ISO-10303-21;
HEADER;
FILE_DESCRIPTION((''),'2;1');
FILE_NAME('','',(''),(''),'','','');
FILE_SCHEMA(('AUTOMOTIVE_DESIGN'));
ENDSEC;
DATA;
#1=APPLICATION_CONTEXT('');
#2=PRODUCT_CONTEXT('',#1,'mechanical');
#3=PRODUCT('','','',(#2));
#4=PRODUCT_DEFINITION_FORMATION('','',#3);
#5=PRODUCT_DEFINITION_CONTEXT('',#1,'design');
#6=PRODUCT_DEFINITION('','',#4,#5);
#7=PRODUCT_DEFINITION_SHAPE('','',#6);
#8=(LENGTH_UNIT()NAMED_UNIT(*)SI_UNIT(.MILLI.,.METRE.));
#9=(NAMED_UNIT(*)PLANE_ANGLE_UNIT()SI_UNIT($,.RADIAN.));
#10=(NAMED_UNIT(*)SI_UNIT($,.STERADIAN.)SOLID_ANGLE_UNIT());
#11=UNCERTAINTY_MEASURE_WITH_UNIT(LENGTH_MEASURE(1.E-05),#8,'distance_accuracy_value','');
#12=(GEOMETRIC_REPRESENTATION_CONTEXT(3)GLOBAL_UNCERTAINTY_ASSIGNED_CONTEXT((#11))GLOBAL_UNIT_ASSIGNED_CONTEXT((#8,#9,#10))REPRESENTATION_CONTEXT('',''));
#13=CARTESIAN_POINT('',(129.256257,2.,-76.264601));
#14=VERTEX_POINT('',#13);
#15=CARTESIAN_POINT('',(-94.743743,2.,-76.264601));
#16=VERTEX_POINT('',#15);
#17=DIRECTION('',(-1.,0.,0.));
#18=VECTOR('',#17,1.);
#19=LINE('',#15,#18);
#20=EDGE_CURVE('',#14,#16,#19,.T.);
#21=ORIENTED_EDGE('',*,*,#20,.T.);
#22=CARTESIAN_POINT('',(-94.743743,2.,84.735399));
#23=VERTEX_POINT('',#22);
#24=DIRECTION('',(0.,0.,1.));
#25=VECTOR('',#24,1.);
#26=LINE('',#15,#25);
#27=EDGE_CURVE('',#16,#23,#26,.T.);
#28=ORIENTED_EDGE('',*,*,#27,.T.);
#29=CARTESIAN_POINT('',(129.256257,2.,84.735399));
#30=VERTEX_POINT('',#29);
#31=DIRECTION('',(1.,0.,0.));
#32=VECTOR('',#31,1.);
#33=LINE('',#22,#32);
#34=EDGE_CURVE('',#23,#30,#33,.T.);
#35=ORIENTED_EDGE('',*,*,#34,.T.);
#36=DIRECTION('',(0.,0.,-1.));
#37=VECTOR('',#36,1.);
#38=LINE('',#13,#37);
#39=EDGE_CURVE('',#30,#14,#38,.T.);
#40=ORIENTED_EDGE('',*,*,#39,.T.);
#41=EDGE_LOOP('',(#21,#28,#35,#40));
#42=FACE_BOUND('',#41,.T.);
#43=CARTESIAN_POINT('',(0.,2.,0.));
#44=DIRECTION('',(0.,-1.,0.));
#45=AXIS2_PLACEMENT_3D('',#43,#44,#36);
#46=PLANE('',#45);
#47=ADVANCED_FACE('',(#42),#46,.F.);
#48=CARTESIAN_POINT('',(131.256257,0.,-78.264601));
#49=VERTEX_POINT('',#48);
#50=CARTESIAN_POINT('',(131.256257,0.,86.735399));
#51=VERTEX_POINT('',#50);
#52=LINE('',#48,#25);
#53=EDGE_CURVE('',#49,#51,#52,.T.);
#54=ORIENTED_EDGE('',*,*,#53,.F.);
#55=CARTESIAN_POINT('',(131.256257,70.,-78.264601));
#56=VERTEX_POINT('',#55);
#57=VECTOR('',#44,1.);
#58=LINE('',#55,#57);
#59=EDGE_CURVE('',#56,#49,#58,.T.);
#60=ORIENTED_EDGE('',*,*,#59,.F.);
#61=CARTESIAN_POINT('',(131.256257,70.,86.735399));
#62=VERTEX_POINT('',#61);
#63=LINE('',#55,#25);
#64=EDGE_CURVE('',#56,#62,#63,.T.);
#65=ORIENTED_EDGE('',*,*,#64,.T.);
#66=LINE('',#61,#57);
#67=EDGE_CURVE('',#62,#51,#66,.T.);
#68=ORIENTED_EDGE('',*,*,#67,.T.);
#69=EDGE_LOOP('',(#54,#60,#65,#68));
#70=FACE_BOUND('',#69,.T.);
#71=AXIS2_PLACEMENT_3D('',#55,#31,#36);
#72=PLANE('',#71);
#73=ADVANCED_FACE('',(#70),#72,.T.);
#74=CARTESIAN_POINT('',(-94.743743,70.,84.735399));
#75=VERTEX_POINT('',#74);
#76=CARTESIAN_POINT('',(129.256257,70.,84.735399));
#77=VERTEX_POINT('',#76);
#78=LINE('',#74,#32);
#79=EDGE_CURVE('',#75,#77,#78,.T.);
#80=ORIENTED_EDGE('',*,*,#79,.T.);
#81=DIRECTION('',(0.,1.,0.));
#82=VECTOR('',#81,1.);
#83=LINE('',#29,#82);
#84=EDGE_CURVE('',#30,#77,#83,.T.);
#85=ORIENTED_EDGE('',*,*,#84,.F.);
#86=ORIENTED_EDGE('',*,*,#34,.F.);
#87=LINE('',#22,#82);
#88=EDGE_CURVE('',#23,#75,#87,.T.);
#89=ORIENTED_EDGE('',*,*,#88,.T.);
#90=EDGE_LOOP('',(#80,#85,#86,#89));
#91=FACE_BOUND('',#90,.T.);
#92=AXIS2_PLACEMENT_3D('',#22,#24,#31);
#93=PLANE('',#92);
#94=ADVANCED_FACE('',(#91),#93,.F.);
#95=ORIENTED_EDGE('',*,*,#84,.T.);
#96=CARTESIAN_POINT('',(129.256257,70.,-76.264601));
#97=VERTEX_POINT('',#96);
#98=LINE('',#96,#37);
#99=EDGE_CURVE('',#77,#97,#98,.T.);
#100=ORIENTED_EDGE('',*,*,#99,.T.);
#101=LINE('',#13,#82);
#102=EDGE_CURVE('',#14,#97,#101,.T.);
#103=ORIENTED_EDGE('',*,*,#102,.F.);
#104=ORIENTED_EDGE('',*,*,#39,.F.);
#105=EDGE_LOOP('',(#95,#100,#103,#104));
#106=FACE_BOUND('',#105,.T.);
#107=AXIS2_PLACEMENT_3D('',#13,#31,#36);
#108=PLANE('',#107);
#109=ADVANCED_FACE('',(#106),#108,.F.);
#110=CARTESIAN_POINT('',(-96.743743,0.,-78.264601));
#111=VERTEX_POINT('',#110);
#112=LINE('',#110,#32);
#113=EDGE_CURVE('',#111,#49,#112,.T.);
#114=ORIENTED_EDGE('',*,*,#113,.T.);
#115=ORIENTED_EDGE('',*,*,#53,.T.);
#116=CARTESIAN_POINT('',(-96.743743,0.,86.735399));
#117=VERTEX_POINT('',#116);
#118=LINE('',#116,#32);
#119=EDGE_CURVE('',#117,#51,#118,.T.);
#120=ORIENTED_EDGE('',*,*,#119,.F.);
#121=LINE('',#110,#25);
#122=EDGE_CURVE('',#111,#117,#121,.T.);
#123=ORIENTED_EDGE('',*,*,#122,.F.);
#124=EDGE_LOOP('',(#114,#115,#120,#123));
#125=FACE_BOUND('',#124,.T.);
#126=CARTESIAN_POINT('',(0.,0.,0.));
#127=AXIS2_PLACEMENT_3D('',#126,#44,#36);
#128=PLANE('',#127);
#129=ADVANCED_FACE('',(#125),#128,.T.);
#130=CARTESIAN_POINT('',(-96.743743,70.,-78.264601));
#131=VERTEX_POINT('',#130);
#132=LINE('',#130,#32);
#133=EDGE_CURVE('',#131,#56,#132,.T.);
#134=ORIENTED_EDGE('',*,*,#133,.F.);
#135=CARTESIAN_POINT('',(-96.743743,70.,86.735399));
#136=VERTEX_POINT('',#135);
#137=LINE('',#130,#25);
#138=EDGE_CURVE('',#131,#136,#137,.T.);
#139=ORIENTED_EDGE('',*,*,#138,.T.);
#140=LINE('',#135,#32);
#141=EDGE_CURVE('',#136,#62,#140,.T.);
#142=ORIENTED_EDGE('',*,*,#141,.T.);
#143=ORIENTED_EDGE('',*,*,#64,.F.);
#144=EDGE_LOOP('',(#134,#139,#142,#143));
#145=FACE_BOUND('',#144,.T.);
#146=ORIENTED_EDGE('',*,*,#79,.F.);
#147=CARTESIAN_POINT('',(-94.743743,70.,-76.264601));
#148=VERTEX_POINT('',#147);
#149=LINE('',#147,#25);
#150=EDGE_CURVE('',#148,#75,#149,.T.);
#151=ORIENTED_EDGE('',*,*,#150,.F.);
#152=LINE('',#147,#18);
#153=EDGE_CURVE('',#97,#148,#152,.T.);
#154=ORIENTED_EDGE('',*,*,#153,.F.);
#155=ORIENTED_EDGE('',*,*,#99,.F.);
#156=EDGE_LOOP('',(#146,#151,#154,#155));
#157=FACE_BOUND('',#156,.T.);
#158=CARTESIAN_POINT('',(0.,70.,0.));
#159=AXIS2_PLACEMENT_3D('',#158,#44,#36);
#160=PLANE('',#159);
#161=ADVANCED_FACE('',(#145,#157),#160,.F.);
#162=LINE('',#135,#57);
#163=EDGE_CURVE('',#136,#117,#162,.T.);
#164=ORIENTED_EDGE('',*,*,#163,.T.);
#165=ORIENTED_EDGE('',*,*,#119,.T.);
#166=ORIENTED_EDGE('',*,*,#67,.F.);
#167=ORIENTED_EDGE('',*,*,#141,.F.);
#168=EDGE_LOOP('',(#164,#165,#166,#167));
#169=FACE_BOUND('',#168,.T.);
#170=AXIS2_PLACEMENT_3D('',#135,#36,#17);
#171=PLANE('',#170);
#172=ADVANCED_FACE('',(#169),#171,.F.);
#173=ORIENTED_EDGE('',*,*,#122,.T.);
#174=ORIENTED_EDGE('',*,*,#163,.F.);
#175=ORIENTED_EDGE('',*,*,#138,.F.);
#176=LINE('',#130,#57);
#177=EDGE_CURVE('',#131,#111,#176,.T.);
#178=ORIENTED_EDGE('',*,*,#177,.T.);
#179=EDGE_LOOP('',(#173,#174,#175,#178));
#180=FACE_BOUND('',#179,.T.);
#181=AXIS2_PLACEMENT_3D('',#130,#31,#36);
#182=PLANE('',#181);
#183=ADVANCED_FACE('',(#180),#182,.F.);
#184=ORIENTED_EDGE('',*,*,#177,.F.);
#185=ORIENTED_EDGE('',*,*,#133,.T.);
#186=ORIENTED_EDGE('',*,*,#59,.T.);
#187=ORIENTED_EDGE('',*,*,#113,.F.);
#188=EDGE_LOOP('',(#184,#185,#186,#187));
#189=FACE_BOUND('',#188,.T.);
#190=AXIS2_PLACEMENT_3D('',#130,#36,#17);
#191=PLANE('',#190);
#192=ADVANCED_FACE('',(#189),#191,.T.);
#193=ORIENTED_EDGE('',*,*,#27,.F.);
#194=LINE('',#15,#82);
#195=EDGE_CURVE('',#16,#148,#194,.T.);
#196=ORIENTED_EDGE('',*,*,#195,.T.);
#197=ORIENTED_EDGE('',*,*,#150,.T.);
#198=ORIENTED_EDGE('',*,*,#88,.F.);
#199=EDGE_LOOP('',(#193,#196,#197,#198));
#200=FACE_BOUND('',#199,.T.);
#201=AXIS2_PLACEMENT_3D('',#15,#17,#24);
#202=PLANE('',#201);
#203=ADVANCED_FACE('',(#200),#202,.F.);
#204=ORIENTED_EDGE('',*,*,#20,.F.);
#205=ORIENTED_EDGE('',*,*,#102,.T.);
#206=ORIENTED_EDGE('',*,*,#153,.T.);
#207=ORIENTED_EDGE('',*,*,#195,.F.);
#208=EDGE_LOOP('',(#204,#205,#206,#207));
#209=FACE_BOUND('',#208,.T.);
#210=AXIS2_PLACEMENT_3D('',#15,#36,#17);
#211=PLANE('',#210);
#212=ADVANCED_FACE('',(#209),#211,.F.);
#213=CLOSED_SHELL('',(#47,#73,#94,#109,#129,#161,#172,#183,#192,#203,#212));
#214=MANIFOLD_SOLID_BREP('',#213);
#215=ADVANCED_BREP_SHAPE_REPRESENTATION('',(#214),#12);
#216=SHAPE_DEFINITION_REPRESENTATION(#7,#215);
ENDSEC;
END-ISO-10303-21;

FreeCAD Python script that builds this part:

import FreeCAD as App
import Part
import Sketcher


def add_polygon(sketch, points):
    """Adds a closed chain of lines whose ends are joined by coincident constraints."""
    first, n = sketch.GeometryCount, len(points)
    for a, b in zip(points, points[1:] + points[:1]):
        sketch.addGeometry(Part.LineSegment(App.Vector(*a, 0), App.Vector(*b, 0)), False)
    for i in range(n):
        sketch.addConstraint(Sketcher.Constraint("Coincident", first + i, 2, first + (i + 1) % n, 1))

doc = App.newDocument("Part")
params = doc.addObject("Spreadsheet::Sheet", "Params")
for row, (alias, value) in enumerate([
    ("sketch1_width", "228 mm"),
    ("sketch1_height", "165 mm"),
    ("pad1_length", "70 mm"),
    ("sketch2_width", "228 mm"),
    ("sketch2_width2", "224 mm"),
    ("sketch2_height", "165 mm"),
    ("sketch2_height2", "161 mm"),
    ("pocket1_length", "68 mm"),
], start=1):
    params.set(f"A{row}", alias)
    params.set(f"B{row}", "=" + value)
    params.setAlias(f"B{row}", alias)

body = doc.addObject("PartDesign::Body", "Body")

sketch1 = body.newObject("Sketcher::SketchObject", "Sketch")
sketch1.AttachmentSupport = (doc.getObject("XZ_Plane"), [""])
sketch1.MapMode = "FlatFace"
add_polygon(sketch1, [(-96.743743, -78.264601), (-96.743743, 86.735399), (131.256257, 86.735399), (131.256257, -78.264601)])
sketch1.addConstraint([
    Sketcher.Constraint("Vertical", 0),
    Sketcher.Constraint("Horizontal", 1),
    Sketcher.Constraint("Vertical", 2),
    Sketcher.Constraint("Horizontal", 3),
    Sketcher.Constraint("DistanceX", 1, 1, 1, 2, 228.0),
    Sketcher.Constraint("DistanceY", 0, 1, 0, 2, 165.0),
    Sketcher.Constraint("DistanceY", -1, 1, 0, 2, 86.735399),
    Sketcher.Constraint("DistanceX", 0, 2, -1, 1, 96.743743),
])
sketch1.setExpression("Constraints[8]", "Params.sketch1_width")
sketch1.setExpression("Constraints[9]", "Params.sketch1_height")
pad1 = body.newObject("PartDesign::Pad", "Pad")
pad1.Profile = sketch1
pad1.setExpression("Length", "Params.pad1_length")
pad1.Reversed = True

sketch2 = body.newObject("Sketcher::SketchObject", "Sketch001")
sketch2.AttachmentSupport = (doc.getObject("XZ_Plane"), [""])
sketch2.MapMode = "FlatFace"
sketch2.AttachmentOffset = App.Placement(App.Vector(0, 0, -70), App.Rotation())
add_polygon(sketch2, [(-126.746, -108.267), (-126.746, 116.737), (161.258, 116.737), (161.258, -108.267)])
add_polygon(sketch2, [(131.256257, 86.735399), (-96.743743, 86.735399), (-96.743743, -78.264601), (131.256257, -78.264601)])
add_polygon(sketch2, [(-94.743743, -76.264601), (-94.743743, 84.735399), (129.256257, 84.735399), (129.256257, -76.264601)])
sketch2.addConstraint([
    Sketcher.Constraint("Vertical", 0),
    Sketcher.Constraint("Horizontal", 1),
    Sketcher.Constraint("Vertical", 2),
    Sketcher.Constraint("Horizontal", 3),
    Sketcher.Constraint("Horizontal", 4),
    Sketcher.Constraint("Vertical", 5),
    Sketcher.Constraint("Horizontal", 6),
    Sketcher.Constraint("Vertical", 7),
    Sketcher.Constraint("Vertical", 8),
    Sketcher.Constraint("Horizontal", 9),
    Sketcher.Constraint("Vertical", 10),
    Sketcher.Constraint("Horizontal", 11),
    Sketcher.Constraint("DistanceX", 4, 2, 4, 1, 228.0),
    Sketcher.Constraint("DistanceX", 9, 1, 9, 2, 224.0),
    Sketcher.Constraint("DistanceY", 5, 2, 5, 1, 165.0),
    Sketcher.Constraint("DistanceY", 8, 1, 8, 2, 161.0),
    Sketcher.Constraint("DistanceX", 4, 2, 8, 2, 2.0),
    Sketcher.Constraint("DistanceY", 8, 2, 4, 2, 2.0),
    Sketcher.Constraint("DistanceX", 1, 1, 1, 2, 288.004),
    Sketcher.Constraint("DistanceY", 0, 1, 0, 2, 225.004),
    Sketcher.Constraint("DistanceX", 0, 2, -1, 1, 126.746),
    Sketcher.Constraint("DistanceY", -1, 1, 0, 2, 116.737),
    Sketcher.Constraint("DistanceY", -1, 1, 4, 2, 86.735399),
    Sketcher.Constraint("DistanceX", 4, 2, -1, 1, 96.743743),
])
sketch2.setExpression("Constraints[24]", "Params.sketch2_width")
sketch2.setExpression("Constraints[25]", "Params.sketch2_width2")
sketch2.setExpression("Constraints[26]", "Params.sketch2_height")
sketch2.setExpression("Constraints[27]", "Params.sketch2_height2")
pocket1 = body.newObject("PartDesign::Pocket", "Pocket")
pocket1.Profile = sketch2
pocket1.setExpression("Length", "Params.pocket1_length")
pocket1.Reversed = True

doc.recompute()
